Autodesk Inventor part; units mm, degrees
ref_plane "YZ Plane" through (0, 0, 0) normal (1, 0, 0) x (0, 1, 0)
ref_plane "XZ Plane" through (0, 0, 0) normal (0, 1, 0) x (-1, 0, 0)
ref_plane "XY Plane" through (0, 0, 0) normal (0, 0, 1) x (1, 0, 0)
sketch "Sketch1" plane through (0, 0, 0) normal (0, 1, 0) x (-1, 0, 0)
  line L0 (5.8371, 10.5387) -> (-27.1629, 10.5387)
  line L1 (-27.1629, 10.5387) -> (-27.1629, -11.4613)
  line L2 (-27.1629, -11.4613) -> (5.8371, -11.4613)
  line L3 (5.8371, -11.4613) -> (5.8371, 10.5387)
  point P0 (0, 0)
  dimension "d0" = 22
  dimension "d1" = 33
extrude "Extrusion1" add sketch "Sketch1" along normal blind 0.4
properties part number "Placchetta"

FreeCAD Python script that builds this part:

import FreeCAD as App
import Part
import Sketcher
from FreeCAD import Vector

doc = App.newDocument("Part")
body = doc.addObject("PartDesign::Body", "Body")

sketch1 = body.newObject("Sketcher::SketchObject", "Sketch")
sketch1.AttachmentSupport = (doc.getObject("XZ_Plane"), [""])
sketch1.MapMode = "FlatFace"
sketch1.addGeometry([
    Part.LineSegment(Vector(-5.8371, -11.4613, 0), Vector(-5.8371, 10.5387, 0)),
    Part.LineSegment(Vector(-5.8371, 10.5387, 0), Vector(27.1629, 10.5387, 0)),
    Part.LineSegment(Vector(27.1629, 10.5387, 0), Vector(27.1629, -11.4613, 0)),
    Part.LineSegment(Vector(27.1629, -11.4613, 0), Vector(-5.8371, -11.4613, 0)),
], False)
sketch1.addConstraint([
    Sketcher.Constraint("Coincident", 0, 2, 1, 1),
    Sketcher.Constraint("Coincident", 1, 2, 2, 1),
    Sketcher.Constraint("Coincident", 2, 2, 3, 1),
    Sketcher.Constraint("Coincident", 3, 2, 0, 1),
    Sketcher.Constraint("Vertical", 0),
    Sketcher.Constraint("Horizontal", 1),
    Sketcher.Constraint("Vertical", 2),
    Sketcher.Constraint("Horizontal", 3),
    Sketcher.Constraint("DistanceX", 1, 1, 1, 2, 33.0),
    Sketcher.Constraint("DistanceY", 0, 1, 0, 2, 22.0),
    Sketcher.Constraint("DistanceX", 0, 2, -1, 1, 5.837),
    Sketcher.Constraint("DistanceY", -1, 1, 0, 2, 10.5387),
])
pad1 = body.newObject("PartDesign::Pad", "Pad")
pad1.Profile = sketch1
pad1.Length = 0.4
pad1.Reversed = True

doc.recompute()
